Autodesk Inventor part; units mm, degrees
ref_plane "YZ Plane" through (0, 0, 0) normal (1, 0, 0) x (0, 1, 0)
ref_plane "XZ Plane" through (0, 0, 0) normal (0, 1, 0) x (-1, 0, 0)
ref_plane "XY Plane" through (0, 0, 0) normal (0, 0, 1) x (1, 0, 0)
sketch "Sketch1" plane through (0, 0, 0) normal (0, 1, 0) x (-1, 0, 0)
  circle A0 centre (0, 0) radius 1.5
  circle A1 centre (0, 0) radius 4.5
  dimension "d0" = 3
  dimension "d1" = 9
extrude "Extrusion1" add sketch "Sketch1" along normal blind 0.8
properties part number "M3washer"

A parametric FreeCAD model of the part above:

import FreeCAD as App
import Part
import Sketcher
Q = App.Units.Quantity

doc = App.newDocument("Part")
params = doc.addObject("Spreadsheet::Sheet", "Params")
for row, (alias, value) in enumerate([
    ("sketch1_diameter", "9 mm"),
    ("sketch1_diameter2", "3 mm"),
    ("pad1_length", "0.8 mm"),
], start=1):
    params.set(f"A{row}", alias)
    params.set(f"B{row}", "=" + value)
    params.setAlias(f"B{row}", alias)

body = doc.addObject("PartDesign::Body", "Body")

sketch1 = body.newObject("Sketcher::SketchObject", "Sketch")
sketch1.AttachmentSupport = (doc.getObject("XZ_Plane"), [""])
sketch1.MapMode = "FlatFace"
sketch1.addGeometry([
    Part.Circle(App.Vector(0, 0, 0), App.Vector(0, 0, 1), 4.5),
    Part.Circle(App.Vector(0, 0, 0), App.Vector(0, 0, 1), 1.5),
], False)
sketch1.addConstraint([
    Sketcher.Constraint("Coincident", 0, 3, -1, 1),
    Sketcher.Constraint("Coincident", 1, 3, -1, 1),
    Sketcher.Constraint("Diameter", 0, Q("9 mm")),
    Sketcher.Constraint("Diameter", 1, Q("3 mm")),
])
sketch1.setExpression("Constraints[2]", "Params.sketch1_diameter")
sketch1.setExpression("Constraints[3]", "Params.sketch1_diameter2")
pad1 = body.newObject("PartDesign::Pad", "Pad")
pad1.Profile = sketch1
pad1.setExpression("Length", "Params.pad1_length")
pad1.Reversed = True

doc.recompute()
